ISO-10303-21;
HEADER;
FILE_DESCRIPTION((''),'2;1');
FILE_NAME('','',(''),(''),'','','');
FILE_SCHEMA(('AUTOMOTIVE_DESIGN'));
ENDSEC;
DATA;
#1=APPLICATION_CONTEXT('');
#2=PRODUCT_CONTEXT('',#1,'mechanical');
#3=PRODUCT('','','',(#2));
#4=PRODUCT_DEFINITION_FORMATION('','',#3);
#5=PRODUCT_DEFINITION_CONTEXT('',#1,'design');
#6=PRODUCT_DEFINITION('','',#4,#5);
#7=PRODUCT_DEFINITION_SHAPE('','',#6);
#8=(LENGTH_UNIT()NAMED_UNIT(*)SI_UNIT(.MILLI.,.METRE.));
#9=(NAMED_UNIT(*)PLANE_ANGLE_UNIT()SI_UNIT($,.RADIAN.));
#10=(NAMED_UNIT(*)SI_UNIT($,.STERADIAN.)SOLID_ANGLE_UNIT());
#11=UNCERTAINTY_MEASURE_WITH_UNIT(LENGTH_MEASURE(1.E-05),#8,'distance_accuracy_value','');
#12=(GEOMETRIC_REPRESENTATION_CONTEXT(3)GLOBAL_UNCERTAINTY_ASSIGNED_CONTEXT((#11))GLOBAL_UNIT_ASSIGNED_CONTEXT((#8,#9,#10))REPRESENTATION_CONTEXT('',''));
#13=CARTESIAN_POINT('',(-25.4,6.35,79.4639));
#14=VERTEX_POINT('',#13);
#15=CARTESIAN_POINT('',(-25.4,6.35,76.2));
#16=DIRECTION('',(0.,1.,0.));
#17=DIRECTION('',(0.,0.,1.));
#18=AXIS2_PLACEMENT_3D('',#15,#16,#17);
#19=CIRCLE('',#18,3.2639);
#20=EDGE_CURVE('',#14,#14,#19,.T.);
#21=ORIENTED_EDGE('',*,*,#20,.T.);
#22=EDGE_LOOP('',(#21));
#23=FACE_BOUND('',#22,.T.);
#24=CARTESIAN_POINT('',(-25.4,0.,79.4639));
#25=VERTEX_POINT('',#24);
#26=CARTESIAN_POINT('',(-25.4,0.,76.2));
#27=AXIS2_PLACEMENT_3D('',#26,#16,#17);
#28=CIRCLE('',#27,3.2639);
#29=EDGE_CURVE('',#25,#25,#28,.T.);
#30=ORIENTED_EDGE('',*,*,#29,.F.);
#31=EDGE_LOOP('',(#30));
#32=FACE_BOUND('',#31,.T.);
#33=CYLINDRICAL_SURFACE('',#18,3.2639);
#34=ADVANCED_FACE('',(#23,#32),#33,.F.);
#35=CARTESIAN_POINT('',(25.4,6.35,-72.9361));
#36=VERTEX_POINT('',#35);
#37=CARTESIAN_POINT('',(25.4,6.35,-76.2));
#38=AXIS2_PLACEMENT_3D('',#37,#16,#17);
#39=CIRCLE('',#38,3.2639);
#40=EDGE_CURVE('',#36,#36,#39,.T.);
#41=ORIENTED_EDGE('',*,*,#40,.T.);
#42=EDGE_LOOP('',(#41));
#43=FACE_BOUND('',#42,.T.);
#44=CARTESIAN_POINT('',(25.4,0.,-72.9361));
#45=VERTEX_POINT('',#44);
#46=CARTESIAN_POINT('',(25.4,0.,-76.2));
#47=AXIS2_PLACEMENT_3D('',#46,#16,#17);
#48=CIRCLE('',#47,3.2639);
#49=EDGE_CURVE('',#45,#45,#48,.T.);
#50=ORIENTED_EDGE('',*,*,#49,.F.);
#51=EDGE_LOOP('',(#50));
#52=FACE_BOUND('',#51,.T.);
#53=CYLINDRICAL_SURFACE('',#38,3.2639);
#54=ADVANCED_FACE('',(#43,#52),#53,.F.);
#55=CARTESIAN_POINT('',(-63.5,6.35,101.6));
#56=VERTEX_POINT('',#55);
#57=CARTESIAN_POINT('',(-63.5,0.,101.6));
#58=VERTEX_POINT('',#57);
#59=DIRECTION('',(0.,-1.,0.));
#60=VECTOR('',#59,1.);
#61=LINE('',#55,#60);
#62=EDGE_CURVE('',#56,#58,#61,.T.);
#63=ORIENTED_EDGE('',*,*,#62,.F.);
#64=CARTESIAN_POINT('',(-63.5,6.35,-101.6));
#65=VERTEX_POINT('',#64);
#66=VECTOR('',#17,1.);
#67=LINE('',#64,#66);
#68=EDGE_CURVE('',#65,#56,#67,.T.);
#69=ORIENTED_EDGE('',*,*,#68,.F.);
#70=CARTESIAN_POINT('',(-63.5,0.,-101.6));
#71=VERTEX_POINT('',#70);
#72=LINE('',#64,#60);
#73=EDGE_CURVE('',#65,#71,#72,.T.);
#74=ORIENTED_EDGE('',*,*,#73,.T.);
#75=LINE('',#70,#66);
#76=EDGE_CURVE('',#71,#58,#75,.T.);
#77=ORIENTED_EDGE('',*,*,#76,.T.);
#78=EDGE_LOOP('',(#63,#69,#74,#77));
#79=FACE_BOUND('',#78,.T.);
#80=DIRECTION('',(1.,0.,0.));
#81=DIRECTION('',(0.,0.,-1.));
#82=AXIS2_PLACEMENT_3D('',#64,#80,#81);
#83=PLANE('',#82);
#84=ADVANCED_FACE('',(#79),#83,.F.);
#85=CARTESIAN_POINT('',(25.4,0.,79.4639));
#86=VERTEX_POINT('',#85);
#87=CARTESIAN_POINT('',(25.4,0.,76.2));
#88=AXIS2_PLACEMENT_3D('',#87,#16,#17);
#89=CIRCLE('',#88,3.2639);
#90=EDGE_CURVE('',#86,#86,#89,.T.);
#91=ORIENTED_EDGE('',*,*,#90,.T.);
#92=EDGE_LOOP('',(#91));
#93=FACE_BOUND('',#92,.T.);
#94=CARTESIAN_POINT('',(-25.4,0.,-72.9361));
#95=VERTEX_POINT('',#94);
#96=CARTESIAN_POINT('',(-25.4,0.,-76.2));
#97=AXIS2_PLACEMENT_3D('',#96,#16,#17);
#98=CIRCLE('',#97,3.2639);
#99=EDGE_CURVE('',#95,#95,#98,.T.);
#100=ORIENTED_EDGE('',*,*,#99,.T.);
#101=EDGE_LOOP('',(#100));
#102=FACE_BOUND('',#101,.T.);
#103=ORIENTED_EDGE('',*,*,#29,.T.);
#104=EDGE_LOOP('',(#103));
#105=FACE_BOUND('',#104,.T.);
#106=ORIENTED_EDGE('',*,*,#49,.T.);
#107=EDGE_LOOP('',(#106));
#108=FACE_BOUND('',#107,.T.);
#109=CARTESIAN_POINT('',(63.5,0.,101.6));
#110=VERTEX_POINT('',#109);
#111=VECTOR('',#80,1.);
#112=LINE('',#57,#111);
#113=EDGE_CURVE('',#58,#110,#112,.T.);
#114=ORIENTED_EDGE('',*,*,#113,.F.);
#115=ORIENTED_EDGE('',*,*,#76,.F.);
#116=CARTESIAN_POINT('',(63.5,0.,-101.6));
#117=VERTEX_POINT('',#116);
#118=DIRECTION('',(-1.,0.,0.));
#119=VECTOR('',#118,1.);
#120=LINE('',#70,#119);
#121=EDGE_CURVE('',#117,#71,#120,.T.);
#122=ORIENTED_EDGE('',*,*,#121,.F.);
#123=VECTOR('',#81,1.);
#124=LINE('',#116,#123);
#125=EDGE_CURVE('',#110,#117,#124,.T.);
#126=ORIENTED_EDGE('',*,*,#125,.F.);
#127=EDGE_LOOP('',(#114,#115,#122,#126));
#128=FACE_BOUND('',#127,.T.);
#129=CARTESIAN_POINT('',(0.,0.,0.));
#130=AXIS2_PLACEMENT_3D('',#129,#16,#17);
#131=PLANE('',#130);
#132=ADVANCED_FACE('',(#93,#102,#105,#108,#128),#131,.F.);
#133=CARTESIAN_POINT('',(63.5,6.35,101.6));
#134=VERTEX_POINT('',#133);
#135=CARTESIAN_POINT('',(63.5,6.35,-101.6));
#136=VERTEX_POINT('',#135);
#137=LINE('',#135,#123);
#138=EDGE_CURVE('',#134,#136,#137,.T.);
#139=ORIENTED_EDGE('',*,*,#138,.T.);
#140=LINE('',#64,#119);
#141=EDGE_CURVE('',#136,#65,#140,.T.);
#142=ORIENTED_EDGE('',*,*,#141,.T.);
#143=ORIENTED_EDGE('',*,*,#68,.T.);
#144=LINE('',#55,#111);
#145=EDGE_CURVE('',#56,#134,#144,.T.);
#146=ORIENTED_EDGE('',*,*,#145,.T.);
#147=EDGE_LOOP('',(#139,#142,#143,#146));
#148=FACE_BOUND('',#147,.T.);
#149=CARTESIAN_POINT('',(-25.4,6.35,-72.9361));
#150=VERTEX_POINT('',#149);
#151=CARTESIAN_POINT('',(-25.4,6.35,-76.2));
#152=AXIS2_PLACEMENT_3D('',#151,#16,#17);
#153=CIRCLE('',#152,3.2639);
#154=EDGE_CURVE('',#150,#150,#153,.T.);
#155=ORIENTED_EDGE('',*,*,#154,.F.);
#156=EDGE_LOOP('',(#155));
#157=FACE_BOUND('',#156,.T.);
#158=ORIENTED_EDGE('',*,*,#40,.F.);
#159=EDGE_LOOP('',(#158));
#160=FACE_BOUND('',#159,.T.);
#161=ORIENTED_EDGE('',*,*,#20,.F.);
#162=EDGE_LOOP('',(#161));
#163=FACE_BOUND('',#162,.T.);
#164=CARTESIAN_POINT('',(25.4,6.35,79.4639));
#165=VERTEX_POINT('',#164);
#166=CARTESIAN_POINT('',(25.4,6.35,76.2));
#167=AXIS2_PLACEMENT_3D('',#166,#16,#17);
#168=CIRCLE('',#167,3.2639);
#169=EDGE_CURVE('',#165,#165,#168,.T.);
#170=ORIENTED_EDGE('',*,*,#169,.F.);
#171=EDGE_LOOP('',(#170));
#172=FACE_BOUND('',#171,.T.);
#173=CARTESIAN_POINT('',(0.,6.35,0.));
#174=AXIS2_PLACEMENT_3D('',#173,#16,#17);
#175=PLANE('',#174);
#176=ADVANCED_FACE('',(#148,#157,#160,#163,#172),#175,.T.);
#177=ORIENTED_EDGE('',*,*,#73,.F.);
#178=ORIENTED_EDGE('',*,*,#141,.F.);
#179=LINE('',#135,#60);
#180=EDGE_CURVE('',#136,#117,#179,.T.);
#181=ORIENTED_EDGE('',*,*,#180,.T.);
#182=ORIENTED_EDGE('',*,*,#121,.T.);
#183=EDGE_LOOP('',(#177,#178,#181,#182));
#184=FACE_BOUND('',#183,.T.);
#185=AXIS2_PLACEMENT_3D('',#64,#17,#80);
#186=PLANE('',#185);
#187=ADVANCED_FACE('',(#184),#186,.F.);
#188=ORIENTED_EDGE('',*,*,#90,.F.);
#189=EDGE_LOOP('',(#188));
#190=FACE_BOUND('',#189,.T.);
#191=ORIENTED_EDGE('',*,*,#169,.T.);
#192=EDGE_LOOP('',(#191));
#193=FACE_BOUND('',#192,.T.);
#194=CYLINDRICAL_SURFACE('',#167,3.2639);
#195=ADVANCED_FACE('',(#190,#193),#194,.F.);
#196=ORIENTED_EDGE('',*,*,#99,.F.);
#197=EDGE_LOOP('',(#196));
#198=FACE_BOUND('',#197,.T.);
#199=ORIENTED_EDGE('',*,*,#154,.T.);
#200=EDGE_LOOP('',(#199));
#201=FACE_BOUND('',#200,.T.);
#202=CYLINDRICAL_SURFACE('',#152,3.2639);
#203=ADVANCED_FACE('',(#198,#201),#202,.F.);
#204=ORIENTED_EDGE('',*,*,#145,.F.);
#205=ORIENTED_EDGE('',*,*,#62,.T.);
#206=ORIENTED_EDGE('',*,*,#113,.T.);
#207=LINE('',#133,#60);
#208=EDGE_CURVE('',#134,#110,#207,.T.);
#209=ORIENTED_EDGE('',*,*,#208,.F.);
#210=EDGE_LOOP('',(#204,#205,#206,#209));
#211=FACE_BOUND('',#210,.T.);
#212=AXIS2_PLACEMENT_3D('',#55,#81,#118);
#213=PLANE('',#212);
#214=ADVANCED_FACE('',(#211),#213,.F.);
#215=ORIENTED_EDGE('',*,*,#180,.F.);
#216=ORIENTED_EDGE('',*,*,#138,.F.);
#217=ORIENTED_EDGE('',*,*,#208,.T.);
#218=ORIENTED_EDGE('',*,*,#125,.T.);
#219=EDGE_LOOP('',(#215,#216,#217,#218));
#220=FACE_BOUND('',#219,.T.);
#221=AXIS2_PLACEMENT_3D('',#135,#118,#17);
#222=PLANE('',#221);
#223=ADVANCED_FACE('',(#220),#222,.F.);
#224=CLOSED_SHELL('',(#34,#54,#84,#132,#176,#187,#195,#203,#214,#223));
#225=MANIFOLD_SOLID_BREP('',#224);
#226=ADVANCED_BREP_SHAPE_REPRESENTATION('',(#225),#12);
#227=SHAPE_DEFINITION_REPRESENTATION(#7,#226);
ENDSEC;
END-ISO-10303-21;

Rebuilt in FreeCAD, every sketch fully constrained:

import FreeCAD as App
import Part
import Sketcher

V = App.Vector
Q = App.Units.Quantity


def add_polygon(sketch, points):
    """Adds a closed chain of lines whose ends are joined by coincident constraints."""
    first, n = sketch.GeometryCount, len(points)
    for a, b in zip(points, points[1:] + points[:1]):
        sketch.addGeometry(Part.LineSegment(App.Vector(*a, 0), App.Vector(*b, 0)), False)
    for i in range(n):
        sketch.addConstraint(Sketcher.Constraint("Coincident", first + i, 2, first + (i + 1) % n, 1))

doc = App.newDocument("Part")
body = doc.addObject("PartDesign::Body", "Body")

# Sketch on XZ plane
sketch1 = body.newObject("Sketcher::SketchObject", "Sketch")
sketch1.AttachmentSupport = (doc.getObject("XZ_Plane"), [""])
sketch1.MapMode = "FlatFace"
add_polygon(sketch1, [(-64, -102), (-64, 102), (64, 102), (64, -102)])  # lines 0-3
sketch1.addConstraint(Sketcher.Constraint("Vertical", 0))
sketch1.addConstraint(Sketcher.Constraint("Horizontal", 1))
sketch1.addConstraint(Sketcher.Constraint("Vertical", 2))
sketch1.addConstraint(Sketcher.Constraint("Horizontal", 3))
sketch1.addConstraint(Sketcher.Constraint("Symmetric", 0, 2, 2, 2, -1, 1))
sketch1.addConstraint(Sketcher.Constraint("DistanceX", 1, 1, 1, 2, Q("5 in")))
sketch1.addConstraint(Sketcher.Constraint("DistanceY", 0, 1, 0, 2, Q("8 in")))
pad1 = body.newObject("PartDesign::Pad", "Pad")
pad1.Profile = sketch1
pad1.Length = Q("0.25 in")
pad1.Reversed = True

# Sketch on XZ plane
sketch2 = body.newObject("Sketcher::SketchObject", "Sketch001")
sketch2.AttachmentSupport = (doc.getObject("XZ_Plane"), [""])
sketch2.MapMode = "FlatFace"
sketch2.AttachmentOffset = App.Placement(V(0, 0, -0.25 * 25.4), App.Rotation())
sketch2.addGeometry(Part.Circle(V(-25.4, -76.2, 0), V(0, 0, 1), 3.3), False)
sketch2.addGeometry(Part.Circle(V(25.4, -76.2, 0), V(0, 0, 1), 3.3), False)
sketch2.addGeometry(Part.Circle(V(25.4, 76.2, 0), V(0, 0, 1), 3.3), False)
sketch2.addGeometry(Part.Circle(V(-25.4, 76.2, 0), V(0, 0, 1), 3.3), False)
sketch2.addConstraint(Sketcher.Constraint("Equal", 0, 1))
sketch2.addConstraint(Sketcher.Constraint("Equal", 1, 2))
sketch2.addConstraint(Sketcher.Constraint("Equal", 2, 3))
sketch2.addConstraint(Sketcher.Constraint("Symmetric", 0, 3, 2, 3, -1, 1))
sketch2.addConstraint(Sketcher.Constraint("Symmetric", 1, 3, 3, 3, -1, 1))
sketch2.addConstraint(Sketcher.Constraint("Symmetric", 0, 3, 1, 3, -2))
sketch2.addConstraint(Sketcher.Constraint("Diameter", 0, Q("0.257 in")))
sketch2.addConstraint(Sketcher.Constraint("DistanceX", 0, 3, -1, 1, Q("1 in")))
sketch2.addConstraint(Sketcher.Constraint("DistanceY", 0, 3, -1, 1, Q("3 in")))
doc.recompute()
hole = body.newObject("PartDesign::Hole", "Hole")
hole.Profile = sketch2
hole.ThreadType = "None"
hole.Diameter = Q("0.257 in")
hole.DepthType = "ThroughAll"
hole.Reversed = True

doc.recompute()
